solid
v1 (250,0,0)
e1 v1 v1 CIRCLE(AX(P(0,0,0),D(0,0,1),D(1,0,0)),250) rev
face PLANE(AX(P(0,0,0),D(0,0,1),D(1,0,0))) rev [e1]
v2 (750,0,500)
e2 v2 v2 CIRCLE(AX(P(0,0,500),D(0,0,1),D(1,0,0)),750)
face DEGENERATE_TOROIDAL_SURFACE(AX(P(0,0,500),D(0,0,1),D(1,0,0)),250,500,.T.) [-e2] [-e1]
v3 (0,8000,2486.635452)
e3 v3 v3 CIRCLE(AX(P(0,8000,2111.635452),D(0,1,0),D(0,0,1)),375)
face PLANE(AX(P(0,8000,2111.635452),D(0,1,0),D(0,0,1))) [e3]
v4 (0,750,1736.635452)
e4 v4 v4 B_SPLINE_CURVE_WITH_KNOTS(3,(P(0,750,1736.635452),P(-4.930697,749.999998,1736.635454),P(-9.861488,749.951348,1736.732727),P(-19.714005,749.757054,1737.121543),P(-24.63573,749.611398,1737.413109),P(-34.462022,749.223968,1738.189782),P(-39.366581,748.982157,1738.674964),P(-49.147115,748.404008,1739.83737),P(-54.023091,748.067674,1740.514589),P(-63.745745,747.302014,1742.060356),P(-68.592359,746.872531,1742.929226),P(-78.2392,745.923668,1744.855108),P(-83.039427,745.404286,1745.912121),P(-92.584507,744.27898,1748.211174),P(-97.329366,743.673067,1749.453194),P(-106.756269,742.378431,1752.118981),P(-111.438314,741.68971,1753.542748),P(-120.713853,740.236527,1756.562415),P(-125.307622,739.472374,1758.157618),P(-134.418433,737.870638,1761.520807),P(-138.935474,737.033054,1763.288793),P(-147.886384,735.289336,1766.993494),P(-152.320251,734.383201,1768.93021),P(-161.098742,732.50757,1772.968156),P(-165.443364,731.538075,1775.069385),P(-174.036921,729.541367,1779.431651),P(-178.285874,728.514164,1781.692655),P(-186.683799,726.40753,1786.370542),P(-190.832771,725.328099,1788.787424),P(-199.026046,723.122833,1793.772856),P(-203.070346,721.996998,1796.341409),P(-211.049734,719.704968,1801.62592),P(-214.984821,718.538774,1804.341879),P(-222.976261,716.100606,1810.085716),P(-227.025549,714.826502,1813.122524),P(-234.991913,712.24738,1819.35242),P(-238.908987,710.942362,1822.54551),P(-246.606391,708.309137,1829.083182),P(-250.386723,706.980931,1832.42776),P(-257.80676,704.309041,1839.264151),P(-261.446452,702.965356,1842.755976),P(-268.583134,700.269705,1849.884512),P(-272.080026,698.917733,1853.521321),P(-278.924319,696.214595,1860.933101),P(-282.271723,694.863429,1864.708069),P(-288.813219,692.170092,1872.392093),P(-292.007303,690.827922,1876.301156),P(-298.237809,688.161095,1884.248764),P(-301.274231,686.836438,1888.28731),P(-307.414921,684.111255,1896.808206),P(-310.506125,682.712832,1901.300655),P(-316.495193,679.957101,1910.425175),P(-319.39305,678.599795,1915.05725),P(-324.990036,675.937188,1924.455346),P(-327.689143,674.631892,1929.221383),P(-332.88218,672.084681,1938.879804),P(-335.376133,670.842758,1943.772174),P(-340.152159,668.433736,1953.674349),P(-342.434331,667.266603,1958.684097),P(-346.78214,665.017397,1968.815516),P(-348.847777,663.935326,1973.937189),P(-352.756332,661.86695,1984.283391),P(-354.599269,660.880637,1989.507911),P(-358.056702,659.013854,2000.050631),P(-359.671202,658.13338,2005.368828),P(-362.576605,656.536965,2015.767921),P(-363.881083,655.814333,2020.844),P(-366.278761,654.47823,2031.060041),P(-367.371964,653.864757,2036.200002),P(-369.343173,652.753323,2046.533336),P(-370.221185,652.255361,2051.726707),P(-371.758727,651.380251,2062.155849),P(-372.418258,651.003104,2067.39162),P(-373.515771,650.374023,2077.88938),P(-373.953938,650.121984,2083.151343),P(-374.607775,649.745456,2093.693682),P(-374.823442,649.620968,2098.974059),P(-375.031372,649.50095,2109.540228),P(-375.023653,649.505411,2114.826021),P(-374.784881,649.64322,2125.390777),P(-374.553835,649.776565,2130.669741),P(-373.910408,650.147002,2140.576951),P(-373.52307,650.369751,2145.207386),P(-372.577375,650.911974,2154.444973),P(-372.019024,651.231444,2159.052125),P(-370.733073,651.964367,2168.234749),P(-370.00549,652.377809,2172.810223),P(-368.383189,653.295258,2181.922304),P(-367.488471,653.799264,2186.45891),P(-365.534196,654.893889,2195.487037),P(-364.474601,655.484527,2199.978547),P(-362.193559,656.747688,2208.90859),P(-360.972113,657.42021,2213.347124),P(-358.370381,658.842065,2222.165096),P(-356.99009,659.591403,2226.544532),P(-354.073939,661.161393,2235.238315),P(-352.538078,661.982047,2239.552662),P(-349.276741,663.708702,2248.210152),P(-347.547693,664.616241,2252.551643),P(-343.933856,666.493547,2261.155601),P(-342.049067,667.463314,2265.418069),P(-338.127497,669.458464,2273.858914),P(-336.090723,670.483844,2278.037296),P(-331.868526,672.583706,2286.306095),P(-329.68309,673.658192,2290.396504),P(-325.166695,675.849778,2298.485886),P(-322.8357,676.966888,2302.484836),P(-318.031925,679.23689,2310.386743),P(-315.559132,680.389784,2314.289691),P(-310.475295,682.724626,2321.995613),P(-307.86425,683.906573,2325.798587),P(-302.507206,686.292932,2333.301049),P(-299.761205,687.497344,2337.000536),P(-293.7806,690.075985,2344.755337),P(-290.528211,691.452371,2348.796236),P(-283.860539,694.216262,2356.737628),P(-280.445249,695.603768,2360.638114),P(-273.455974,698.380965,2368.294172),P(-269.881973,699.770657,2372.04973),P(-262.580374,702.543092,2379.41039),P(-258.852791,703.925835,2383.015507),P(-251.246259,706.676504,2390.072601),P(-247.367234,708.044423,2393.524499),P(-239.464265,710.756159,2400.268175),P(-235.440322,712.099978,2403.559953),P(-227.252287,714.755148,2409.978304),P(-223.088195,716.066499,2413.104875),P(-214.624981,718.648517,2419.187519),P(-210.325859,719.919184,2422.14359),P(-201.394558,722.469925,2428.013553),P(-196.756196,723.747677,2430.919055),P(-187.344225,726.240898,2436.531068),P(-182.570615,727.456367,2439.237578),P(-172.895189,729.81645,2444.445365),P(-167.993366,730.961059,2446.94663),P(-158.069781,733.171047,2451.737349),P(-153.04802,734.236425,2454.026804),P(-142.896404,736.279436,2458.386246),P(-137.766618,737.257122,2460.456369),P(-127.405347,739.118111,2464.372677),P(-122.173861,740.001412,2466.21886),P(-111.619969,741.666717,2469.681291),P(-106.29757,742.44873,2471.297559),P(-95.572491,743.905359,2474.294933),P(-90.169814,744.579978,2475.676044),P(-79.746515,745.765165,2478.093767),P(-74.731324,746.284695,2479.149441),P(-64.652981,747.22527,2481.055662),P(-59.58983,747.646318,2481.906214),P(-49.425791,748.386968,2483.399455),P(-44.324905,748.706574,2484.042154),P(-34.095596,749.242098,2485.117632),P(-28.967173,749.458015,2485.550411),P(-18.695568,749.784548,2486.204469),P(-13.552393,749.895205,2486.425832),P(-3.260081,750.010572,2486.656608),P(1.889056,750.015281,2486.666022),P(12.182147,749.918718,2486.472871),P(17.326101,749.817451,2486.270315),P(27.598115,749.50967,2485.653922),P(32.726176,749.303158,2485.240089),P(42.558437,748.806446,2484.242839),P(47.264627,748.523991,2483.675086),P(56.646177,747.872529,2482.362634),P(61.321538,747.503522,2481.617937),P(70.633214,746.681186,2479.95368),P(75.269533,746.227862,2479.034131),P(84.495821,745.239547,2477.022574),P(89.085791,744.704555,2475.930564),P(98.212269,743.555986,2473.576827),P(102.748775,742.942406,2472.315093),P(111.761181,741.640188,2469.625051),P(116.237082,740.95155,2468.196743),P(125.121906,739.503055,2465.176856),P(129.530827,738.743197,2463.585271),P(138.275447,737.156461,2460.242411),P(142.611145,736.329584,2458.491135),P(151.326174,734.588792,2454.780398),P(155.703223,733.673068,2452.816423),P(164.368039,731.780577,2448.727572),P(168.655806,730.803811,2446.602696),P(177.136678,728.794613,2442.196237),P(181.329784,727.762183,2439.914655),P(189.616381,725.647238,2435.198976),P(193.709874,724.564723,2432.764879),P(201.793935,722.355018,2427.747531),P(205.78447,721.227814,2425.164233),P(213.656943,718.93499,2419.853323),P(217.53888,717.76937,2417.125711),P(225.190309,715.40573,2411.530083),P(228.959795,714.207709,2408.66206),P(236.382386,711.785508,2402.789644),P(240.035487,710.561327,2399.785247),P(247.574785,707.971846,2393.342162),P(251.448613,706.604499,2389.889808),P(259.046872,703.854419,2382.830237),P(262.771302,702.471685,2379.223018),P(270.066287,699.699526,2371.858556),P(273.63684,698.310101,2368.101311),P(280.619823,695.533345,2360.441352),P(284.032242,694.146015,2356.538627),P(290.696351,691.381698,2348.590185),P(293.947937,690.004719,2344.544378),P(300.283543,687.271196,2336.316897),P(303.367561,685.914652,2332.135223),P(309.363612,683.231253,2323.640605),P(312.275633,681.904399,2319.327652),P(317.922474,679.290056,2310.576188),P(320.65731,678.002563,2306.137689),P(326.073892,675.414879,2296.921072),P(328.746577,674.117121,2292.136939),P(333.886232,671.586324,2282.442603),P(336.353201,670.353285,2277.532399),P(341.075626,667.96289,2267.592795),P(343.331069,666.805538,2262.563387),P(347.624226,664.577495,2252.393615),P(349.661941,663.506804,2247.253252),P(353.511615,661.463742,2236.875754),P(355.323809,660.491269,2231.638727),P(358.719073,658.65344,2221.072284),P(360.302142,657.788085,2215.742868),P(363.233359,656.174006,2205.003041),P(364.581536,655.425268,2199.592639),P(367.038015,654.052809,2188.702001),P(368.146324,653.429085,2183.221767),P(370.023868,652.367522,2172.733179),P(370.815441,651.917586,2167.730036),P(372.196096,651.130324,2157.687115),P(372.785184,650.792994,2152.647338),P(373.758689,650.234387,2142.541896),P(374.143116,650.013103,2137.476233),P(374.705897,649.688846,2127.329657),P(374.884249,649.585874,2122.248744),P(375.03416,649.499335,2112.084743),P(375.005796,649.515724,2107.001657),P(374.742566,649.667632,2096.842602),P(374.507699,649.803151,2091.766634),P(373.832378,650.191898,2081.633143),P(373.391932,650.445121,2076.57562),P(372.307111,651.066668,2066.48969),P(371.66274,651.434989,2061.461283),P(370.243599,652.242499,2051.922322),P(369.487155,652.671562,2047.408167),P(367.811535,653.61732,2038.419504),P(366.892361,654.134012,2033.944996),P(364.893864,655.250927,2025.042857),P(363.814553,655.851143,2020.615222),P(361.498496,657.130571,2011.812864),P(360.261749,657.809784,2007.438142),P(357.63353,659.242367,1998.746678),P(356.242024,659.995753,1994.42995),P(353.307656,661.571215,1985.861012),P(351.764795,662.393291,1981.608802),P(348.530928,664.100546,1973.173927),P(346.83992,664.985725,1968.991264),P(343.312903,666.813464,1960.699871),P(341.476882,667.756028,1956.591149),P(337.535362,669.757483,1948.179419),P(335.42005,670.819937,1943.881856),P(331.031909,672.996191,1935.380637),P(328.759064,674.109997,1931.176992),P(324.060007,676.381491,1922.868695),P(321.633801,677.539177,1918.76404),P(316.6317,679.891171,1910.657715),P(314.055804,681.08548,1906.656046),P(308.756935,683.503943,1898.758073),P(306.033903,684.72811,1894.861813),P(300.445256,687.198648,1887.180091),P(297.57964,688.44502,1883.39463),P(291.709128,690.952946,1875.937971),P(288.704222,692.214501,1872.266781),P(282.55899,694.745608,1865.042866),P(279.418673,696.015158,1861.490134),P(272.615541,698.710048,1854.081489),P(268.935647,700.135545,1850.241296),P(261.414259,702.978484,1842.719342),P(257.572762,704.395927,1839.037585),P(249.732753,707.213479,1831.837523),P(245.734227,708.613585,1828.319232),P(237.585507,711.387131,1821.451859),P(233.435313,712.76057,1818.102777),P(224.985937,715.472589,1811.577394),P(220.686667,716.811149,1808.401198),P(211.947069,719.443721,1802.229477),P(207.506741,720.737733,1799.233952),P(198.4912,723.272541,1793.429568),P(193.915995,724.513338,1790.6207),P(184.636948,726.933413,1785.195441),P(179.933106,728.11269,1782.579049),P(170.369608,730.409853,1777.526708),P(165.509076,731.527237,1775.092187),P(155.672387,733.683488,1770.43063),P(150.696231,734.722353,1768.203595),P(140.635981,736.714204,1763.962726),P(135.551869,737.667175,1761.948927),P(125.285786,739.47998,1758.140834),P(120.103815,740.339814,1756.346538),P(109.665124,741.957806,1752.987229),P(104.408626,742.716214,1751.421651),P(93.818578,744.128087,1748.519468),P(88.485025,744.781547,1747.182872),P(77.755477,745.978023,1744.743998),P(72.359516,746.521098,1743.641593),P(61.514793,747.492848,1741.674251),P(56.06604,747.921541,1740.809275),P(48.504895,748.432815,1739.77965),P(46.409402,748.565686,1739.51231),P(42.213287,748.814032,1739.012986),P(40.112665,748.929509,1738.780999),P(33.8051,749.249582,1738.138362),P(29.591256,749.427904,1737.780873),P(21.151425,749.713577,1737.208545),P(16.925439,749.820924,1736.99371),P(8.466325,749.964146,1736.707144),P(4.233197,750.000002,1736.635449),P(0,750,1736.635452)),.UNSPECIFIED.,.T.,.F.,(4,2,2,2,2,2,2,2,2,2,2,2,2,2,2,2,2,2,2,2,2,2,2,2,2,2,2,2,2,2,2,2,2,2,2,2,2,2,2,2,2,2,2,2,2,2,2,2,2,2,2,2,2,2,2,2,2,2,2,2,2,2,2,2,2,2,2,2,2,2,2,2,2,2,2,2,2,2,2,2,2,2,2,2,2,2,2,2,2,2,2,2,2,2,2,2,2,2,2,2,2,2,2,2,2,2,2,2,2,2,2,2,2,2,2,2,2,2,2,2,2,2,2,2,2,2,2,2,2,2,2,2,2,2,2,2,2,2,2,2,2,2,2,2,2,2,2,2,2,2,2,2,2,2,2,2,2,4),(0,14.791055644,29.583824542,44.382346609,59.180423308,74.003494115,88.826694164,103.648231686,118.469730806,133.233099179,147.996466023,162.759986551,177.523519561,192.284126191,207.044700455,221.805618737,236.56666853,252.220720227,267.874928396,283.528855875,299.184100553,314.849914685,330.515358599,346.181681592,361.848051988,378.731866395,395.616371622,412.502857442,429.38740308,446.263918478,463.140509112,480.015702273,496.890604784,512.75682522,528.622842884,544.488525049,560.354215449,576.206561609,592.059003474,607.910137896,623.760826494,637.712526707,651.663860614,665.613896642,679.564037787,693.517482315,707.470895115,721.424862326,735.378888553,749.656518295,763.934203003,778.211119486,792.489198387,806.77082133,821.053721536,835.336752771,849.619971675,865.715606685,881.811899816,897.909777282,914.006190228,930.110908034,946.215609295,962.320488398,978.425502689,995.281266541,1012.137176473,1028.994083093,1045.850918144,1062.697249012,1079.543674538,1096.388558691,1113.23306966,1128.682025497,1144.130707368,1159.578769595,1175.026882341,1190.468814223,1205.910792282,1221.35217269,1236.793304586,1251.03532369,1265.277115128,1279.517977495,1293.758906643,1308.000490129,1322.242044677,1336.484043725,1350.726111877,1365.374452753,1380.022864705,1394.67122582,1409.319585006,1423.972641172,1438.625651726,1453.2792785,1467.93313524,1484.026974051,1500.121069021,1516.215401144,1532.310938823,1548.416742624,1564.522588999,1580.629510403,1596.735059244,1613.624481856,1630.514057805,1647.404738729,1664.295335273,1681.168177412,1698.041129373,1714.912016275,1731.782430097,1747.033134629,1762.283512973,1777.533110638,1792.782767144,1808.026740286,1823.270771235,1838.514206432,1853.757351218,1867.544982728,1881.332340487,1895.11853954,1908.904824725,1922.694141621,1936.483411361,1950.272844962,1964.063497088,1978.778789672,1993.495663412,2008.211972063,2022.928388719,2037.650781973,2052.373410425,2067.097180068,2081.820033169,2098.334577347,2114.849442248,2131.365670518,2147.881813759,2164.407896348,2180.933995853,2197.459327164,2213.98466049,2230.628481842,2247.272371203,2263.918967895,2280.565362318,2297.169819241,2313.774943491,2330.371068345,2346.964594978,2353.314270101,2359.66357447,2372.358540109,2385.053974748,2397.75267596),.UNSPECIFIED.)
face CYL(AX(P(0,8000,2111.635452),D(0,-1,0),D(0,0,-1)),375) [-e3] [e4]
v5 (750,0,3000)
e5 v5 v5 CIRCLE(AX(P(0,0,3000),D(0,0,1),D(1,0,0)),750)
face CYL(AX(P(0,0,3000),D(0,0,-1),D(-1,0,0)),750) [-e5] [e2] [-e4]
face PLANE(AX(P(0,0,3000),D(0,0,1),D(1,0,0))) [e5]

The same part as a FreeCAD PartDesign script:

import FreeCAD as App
import Part
import Sketcher

V = App.Vector
Q = App.Units.Quantity


def edges_at(feature, points):
    """Names of the edges that pass closest to the given points."""
    edges = feature.Shape.Edges
    near = lambda p: min(range(len(edges)), key=lambda i: edges[i].distToShape(Part.Vertex(*p))[0])
    return sorted({f"Edge{near(p) + 1}" for p in points})

doc = App.newDocument("Part")
body = doc.addObject("PartDesign::Body", "Body")

# Sketch on XY plane
sketch1 = body.newObject("Sketcher::SketchObject", "Sketch")
sketch1.AttachmentSupport = (doc.getObject("XY_Plane"), [""])
sketch1.MapMode = "FlatFace"
sketch1.addGeometry(Part.Circle(V(0, 0, 0), V(0, 0, 1), 750), False)
sketch1.addConstraint(Sketcher.Constraint("Coincident", 0, 3, -1, 1))
sketch1.addConstraint(Sketcher.Constraint("Diameter", 0, Q("1500 mm")))
pad1 = body.newObject("PartDesign::Pad", "Pad")
pad1.Profile = sketch1
pad1.Length = 3000
doc.recompute()

fillet = body.newObject("PartDesign::Fillet", "Fillet")
fillet.Base = (pad1, edges_at(pad1, [(-750, 0, 0)]))
fillet.Radius = 500

# Sketch on XZ plane
sketch2 = body.newObject("Sketcher::SketchObject", "Sketch001")
sketch2.AttachmentSupport = (doc.getObject("XZ_Plane"), [""])
sketch2.MapMode = "FlatFace"
sketch2.addGeometry(Part.Circle(V(0, 2112, 0), V(0, 0, 1), 375), False)
sketch2.addConstraint(Sketcher.Constraint("PointOnObject", 0, 3, -2))
sketch2.addConstraint(Sketcher.Constraint("Diameter", 0, Q("750 mm")))
sketch2.addConstraint(Sketcher.Constraint("DistanceY", -1, 1, 0, 3, Q("2111.635452 mm")))
pad2 = body.newObject("PartDesign::Pad", "Pad001")
pad2.Profile = sketch2
pad2.Length = 8000
pad2.Reversed = True

doc.recompute()
